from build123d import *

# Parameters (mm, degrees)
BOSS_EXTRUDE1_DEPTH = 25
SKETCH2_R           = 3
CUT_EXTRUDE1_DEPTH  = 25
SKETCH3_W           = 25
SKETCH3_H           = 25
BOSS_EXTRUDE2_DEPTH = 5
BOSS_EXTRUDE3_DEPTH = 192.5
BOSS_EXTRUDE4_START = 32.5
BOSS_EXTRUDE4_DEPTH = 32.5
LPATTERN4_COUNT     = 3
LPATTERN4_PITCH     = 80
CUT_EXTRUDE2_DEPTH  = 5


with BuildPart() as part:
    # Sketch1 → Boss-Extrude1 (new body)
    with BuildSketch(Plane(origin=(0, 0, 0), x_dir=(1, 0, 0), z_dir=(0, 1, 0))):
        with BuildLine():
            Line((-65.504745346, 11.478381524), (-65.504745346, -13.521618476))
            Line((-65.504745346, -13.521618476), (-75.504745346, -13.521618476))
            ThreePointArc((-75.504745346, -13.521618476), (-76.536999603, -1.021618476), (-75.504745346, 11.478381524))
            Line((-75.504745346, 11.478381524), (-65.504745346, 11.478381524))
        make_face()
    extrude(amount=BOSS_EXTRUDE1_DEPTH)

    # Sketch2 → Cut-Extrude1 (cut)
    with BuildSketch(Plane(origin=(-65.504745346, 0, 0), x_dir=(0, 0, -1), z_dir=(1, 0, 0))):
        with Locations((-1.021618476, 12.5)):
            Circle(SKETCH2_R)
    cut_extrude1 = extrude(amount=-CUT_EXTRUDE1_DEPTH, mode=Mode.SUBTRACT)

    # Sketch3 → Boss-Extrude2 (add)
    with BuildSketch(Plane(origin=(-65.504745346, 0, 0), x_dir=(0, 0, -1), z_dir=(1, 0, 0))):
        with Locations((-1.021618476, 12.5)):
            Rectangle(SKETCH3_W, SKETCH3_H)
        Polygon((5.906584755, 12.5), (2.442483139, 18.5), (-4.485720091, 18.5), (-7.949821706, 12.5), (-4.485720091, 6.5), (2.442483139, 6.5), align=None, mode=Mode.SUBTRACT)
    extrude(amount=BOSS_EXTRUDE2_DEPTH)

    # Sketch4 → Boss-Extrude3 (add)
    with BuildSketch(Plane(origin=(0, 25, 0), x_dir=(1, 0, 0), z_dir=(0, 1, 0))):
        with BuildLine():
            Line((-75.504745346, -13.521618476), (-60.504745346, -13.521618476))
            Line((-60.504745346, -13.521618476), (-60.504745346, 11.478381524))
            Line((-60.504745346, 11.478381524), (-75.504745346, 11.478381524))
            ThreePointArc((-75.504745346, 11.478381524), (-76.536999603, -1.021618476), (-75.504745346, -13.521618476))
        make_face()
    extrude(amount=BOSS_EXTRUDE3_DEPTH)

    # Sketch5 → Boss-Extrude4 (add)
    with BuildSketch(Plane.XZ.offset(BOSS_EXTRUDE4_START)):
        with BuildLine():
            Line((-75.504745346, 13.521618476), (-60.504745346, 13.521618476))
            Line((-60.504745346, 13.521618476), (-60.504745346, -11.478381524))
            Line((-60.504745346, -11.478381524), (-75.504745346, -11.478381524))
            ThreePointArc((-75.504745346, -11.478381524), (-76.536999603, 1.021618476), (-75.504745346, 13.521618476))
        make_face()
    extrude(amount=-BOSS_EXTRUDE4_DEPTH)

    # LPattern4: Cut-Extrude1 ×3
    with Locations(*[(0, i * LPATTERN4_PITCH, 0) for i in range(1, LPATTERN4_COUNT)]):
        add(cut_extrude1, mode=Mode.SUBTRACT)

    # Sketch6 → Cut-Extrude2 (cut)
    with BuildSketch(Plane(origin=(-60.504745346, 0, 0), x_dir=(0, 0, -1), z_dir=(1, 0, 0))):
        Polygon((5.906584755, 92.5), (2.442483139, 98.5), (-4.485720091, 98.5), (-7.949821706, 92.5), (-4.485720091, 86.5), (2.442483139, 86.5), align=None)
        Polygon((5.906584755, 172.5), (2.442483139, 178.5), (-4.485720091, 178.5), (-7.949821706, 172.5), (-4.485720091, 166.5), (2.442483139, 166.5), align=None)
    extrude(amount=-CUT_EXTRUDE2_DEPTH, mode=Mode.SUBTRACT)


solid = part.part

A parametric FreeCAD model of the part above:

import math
import FreeCAD as App
import Part
import Sketcher
from FreeCAD import Vector
Q = App.Units.Quantity

doc = App.newDocument("Part")
body = doc.addObject("PartDesign::Body", "Body")

sketch1 = body.newObject("Sketcher::SketchObject", "Sketch")
sketch1.AttachmentSupport = (doc.getObject("XZ_Plane"), [""])
sketch1.MapMode = "FlatFace"
sketch1.addGeometry([
    Part.LineSegment(Vector(-66, 14, 0), Vector(-66, -11, 0)),
    Part.LineSegment(Vector(-66, -11, 0), Vector(-76, -11, 0)),
    Part.ArcOfCircle(Part.Circle(Vector(0, 1, 0), Vector(0, 0, 1), 76), math.radians(170.56), math.radians(189.44)),
    Part.LineSegment(Vector(-76, 14, 0), Vector(-66, 14, 0)),
], False)
sketch1.addConstraint([
    Sketcher.Constraint("Coincident", 0, 2, 1, 1),
    Sketcher.Constraint("Coincident", 1, 2, 2, 2),
    Sketcher.Constraint("Coincident", 2, 1, 3, 1),
    Sketcher.Constraint("Coincident", 3, 2, 0, 1),
    Sketcher.Constraint("Vertical", 0),
    Sketcher.Constraint("Horizontal", 1),
    Sketcher.Constraint("Horizontal", 3),
    Sketcher.Constraint("Vertical", 1, 2, 2, 1),
    Sketcher.Constraint("Radius", 2, Q("76.2 mm")),
    Sketcher.Constraint("DistanceX", 1, 2, 1, 1, Q("10 mm")),
    Sketcher.Constraint("DistanceY", 0, 2, 0, 1, Q("25 mm")),
    Sketcher.Constraint("DistanceX", 2, 3, -1, 1, Q("0.337 mm")),
    Sketcher.Constraint("DistanceY", -1, 1, 2, 3, Q("1.021618 mm")),
])
pad1 = body.newObject("PartDesign::Pad", "Pad")
pad1.Profile = sketch1
pad1.Length = 25
pad1.Reversed = True

sketch2 = body.newObject("Sketcher::SketchObject", "Sketch001")
sketch2.AttachmentSupport = (doc.getObject("YZ_Plane"), [""])
sketch2.MapMode = "FlatFace"
sketch2.AttachmentOffset = App.Placement(Vector(0, 0, -65.504745), App.Rotation())
sketch2.addGeometry(Part.Circle(Vector(12.5, 1, 0), Vector(0, 0, 1), 3), False)
sketch2.addConstraint([
    Sketcher.Constraint("Diameter", 0, Q("6 mm")),
    Sketcher.Constraint("DistanceX", -1, 1, 0, 3, Q("12.5 mm")),
    Sketcher.Constraint("DistanceY", -1, 1, 0, 3, Q("1.021618 mm")),
])
pocket1 = body.newObject("PartDesign::Pocket", "Pocket")
pocket1.Profile = sketch2
pocket1.Length = 25

sketch3 = body.newObject("Sketcher::SketchObject", "Sketch002")
sketch3.AttachmentSupport = (doc.getObject("YZ_Plane"), [""])
sketch3.MapMode = "FlatFace"
sketch3.AttachmentOffset = App.Placement(Vector(0, 0, -65.504745), App.Rotation())
sketch3.addGeometry([
    Part.LineSegment(Vector(25, 14, 0), Vector(0, 14, 0)),
    Part.LineSegment(Vector(0, 14, 0), Vector(0, -11, 0)),
    Part.LineSegment(Vector(0, -11, 0), Vector(25, -11, 0)),
    Part.LineSegment(Vector(25, -11, 0), Vector(25, 14, 0)),
    Part.LineSegment(Vector(18, -2, 0), Vector(12, -6, 0)),
    Part.LineSegment(Vector(12, -6, 0), Vector(6, -2, 0)),
    Part.LineSegment(Vector(6, -2, 0), Vector(6, 4, 0)),
    Part.LineSegment(Vector(6, 4, 0), Vector(12, 8, 0)),
    Part.LineSegment(Vector(12, 8, 0), Vector(18, 4, 0)),
    Part.LineSegment(Vector(18, 4, 0), Vector(18, -2, 0)),
], False)
sketch3.addConstraint([
    Sketcher.Constraint("Coincident", 0, 2, 1, 1),
    Sketcher.Constraint("Coincident", 1, 2, 2, 1),
    Sketcher.Constraint("Coincident", 2, 2, 3, 1),
    Sketcher.Constraint("Coincident", 3, 2, 0, 1),
    Sketcher.Constraint("Coincident", 4, 2, 5, 1),
    Sketcher.Constraint("Coincident", 5, 2, 6, 1),
    Sketcher.Constraint("Coincident", 6, 2, 7, 1),
    Sketcher.Constraint("Coincident", 7, 2, 8, 1),
    Sketcher.Constraint("Coincident", 8, 2, 9, 1),
    Sketcher.Constraint("Coincident", 9, 2, 4, 1),
    Sketcher.Constraint("Horizontal", 0),
    Sketcher.Constraint("Vertical", 1),
    Sketcher.Constraint("Horizontal", 2),
    Sketcher.Constraint("Vertical", 3),
    Sketcher.Constraint("Vertical", 6),
    Sketcher.Constraint("Vertical", 9),
    Sketcher.Constraint("PointOnObject", 0, 2, -2),
    Sketcher.Constraint("Parallel", 4, 7),
    Sketcher.Constraint("Parallel", 5, 8),
    Sketcher.Constraint("Horizontal", 6, 2, 8, 2),
    Sketcher.Constraint("Horizontal", 5, 2, 9, 2),
    Sketcher.Constraint("Vertical", 4, 2, 7, 2),
    Sketcher.Constraint("Equal", 2, 1),
    Sketcher.Constraint("DistanceX", 0, 2, 0, 1, Q("25 mm")),
    Sketcher.Constraint("Angle", 4, Q("-150 deg")),
    Sketcher.Constraint("DistanceX", 5, 2, 4, 2, Q("6 mm")),
    Sketcher.Constraint("DistanceX", -1, 1, 4, 2, Q("12.5 mm")),
    Sketcher.Constraint("DistanceY", 1, 2, 5, 2, Q("9.035898 mm")),
    Sketcher.Constraint("DistanceY", 6, 2, 0, 2, Q("9.035898 mm")),
    Sketcher.Constraint("DistanceY", -1, 1, 0, 2, Q("13.521618 mm")),
])
pad2 = body.newObject("PartDesign::Pad", "Pad001")
pad2.Profile = sketch3
pad2.Length = 5

sketch4 = body.newObject("Sketcher::SketchObject", "Sketch003")
sketch4.AttachmentSupport = (doc.getObject("XZ_Plane"), [""])
sketch4.MapMode = "FlatFace"
sketch4.AttachmentOffset = App.Placement(Vector(0, 0, -25), App.Rotation())
sketch4.addGeometry([
    Part.LineSegment(Vector(-76, 14, 0), Vector(-61, 14, 0)),
    Part.LineSegment(Vector(-61, 14, 0), Vector(-61, -11, 0)),
    Part.LineSegment(Vector(-61, -11, 0), Vector(-76, -11, 0)),
    Part.ArcOfCircle(Part.Circle(Vector(0, 1, 0), Vector(0, 0, 1), 76), math.radians(170.56), math.radians(189.44)),
], False)
sketch4.addConstraint([
    Sketcher.Constraint("Coincident", 0, 2, 1, 1),
    Sketcher.Constraint("Coincident", 1, 2, 2, 1),
    Sketcher.Constraint("Coincident", 2, 2, 3, 2),
    Sketcher.Constraint("Coincident", 3, 1, 0, 1),
    Sketcher.Constraint("Horizontal", 0),
    Sketcher.Constraint("Vertical", 1),
    Sketcher.Constraint("Horizontal", 2),
    Sketcher.Constraint("Vertical", 2, 2, 3, 1),
    Sketcher.Constraint("Radius", 3, Q("76.2 mm")),
    Sketcher.Constraint("DistanceX", 0, 1, 0, 2, Q("15 mm")),
    Sketcher.Constraint("DistanceY", 1, 2, 1, 1, Q("25 mm")),
    Sketcher.Constraint("DistanceX", 3, 3, -1, 1, Q("0.337 mm")),
    Sketcher.Constraint("DistanceY", -1, 1, 3, 3, Q("1.021618 mm")),
])
pad3 = body.newObject("PartDesign::Pad", "Pad002")
pad3.Profile = sketch4
pad3.Length = 192.5
pad3.Reversed = True

sketch5 = body.newObject("Sketcher::SketchObject", "Sketch004")
sketch5.AttachmentSupport = (doc.getObject("XZ_Plane"), [""])
sketch5.MapMode = "FlatFace"
sketch5.AttachmentOffset = App.Placement(Vector(0, 0, 32.5), App.Rotation())
sketch5.addGeometry([
    Part.LineSegment(Vector(-61, 14, 0), Vector(-76, 14, 0)),
    Part.ArcOfCircle(Part.Circle(Vector(0, 1, 0), Vector(0, 0, 1), 76), math.radians(170.56), math.radians(189.44)),
    Part.LineSegment(Vector(-76, -11, 0), Vector(-61, -11, 0)),
    Part.LineSegment(Vector(-61, -11, 0), Vector(-61, 14, 0)),
], False)
sketch5.addConstraint([
    Sketcher.Constraint("Coincident", 0, 2, 1, 1),
    Sketcher.Constraint("Coincident", 1, 2, 2, 1),
    Sketcher.Constraint("Coincident", 2, 2, 3, 1),
    Sketcher.Constraint("Coincident", 3, 2, 0, 1),
    Sketcher.Constraint("Horizontal", 0),
    Sketcher.Constraint("Horizontal", 2),
    Sketcher.Constraint("Vertical", 3),
    Sketcher.Constraint("Vertical", 0, 2, 1, 2),
    Sketcher.Constraint("Radius", 1, Q("76.2 mm")),
    Sketcher.Constraint("DistanceX", 0, 2, 0, 1, Q("15 mm")),
    Sketcher.Constraint("DistanceY", 3, 1, 3, 2, Q("25 mm")),
    Sketcher.Constraint("DistanceX", 1, 3, -1, 1, Q("0.337 mm")),
    Sketcher.Constraint("DistanceY", -1, 1, 1, 3, Q("1.021618 mm")),
])
pad4 = body.newObject("PartDesign::Pad", "Pad003")
pad4.Profile = sketch5
pad4.Length = 32.5
pad4.Reversed = True
doc.recompute()

linearpattern = body.newObject("PartDesign::LinearPattern", "LinearPattern")
linearpattern.Originals = [pocket1]
linearpattern.Direction = (doc.getObject("Y_Axis"), [""])
linearpattern.Mode = "offset"
linearpattern.Offset = 80
linearpattern.Occurrences = 3
body.Tip = linearpattern

sketch6 = body.newObject("Sketcher::SketchObject", "Sketch005")
sketch6.AttachmentSupport = (doc.getObject("YZ_Plane"), [""])
sketch6.MapMode = "FlatFace"
sketch6.AttachmentOffset = App.Placement(Vector(0, 0, -60.504745), App.Rotation())
sketch6.addGeometry([
    Part.LineSegment(Vector(92, -6, 0), Vector(98, -2, 0)),
    Part.LineSegment(Vector(98, -2, 0), Vector(98, 4, 0)),
    Part.LineSegment(Vector(98, 4, 0), Vector(92, 8, 0)),
    Part.LineSegment(Vector(92, 8, 0), Vector(86, 4, 0)),
    Part.LineSegment(Vector(86, 4, 0), Vector(86, -2, 0)),
    Part.LineSegment(Vector(86, -2, 0), Vector(92, -6, 0)),
    Part.LineSegment(Vector(172, -6, 0), Vector(178, -2, 0)),
    Part.LineSegment(Vector(178, -2, 0), Vector(178, 4, 0)),
    Part.LineSegment(Vector(178, 4, 0), Vector(172, 8, 0)),
    Part.LineSegment(Vector(172, 8, 0), Vector(166, 4, 0)),
    Part.LineSegment(Vector(166, 4, 0), Vector(166, -2, 0)),
    Part.LineSegment(Vector(166, -2, 0), Vector(172, -6, 0)),
], False)
sketch6.addConstraint([
    Sketcher.Constraint("Coincident", 0, 2, 1, 1),
    Sketcher.Constraint("Coincident", 1, 2, 2, 1),
    Sketcher.Constraint("Coincident", 2, 2, 3, 1),
    Sketcher.Constraint("Coincident", 3, 2, 4, 1),
    Sketcher.Constraint("Coincident", 4, 2, 5, 1),
    Sketcher.Constraint("Coincident", 5, 2, 0, 1),
    Sketcher.Constraint("Coincident", 6, 2, 7, 1),
    Sketcher.Constraint("Coincident", 7, 2, 8, 1),
    Sketcher.Constraint("Coincident", 8, 2, 9, 1),
    Sketcher.Constraint("Coincident", 9, 2, 10, 1),
    Sketcher.Constraint("Coincident", 10, 2, 11, 1),
    Sketcher.Constraint("Coincident", 11, 2, 6, 1),
    Sketcher.Constraint("Vertical", 1),
    Sketcher.Constraint("Vertical", 4),
    Sketcher.Constraint("Vertical", 7),
    Sketcher.Constraint("Vertical", 10),
    Sketcher.Constraint("Parallel", 0, 3),
    Sketcher.Constraint("Parallel", 2, 5),
    Sketcher.Constraint("Parallel", 3, 6),
    Sketcher.Constraint("Parallel", 5, 8),
    Sketcher.Constraint("Parallel", 6, 9),
    Sketcher.Constraint("Parallel", 8, 11),
    Sketcher.Constraint("Horizontal", 1, 2, 3, 2),
    Sketcher.Constraint("Horizontal", 0, 2, 4, 2),
    Sketcher.Constraint("Horizontal", 4, 2, 6, 2),
    Sketcher.Constraint("Horizontal", 3, 2, 7, 2),
    Sketcher.Constraint("Horizontal", 2, 2, 8, 2),
    Sketcher.Constraint("Horizontal", 7, 2, 9, 2),
    Sketcher.Constraint("Horizontal", 6, 2, 10, 2),
    Sketcher.Constraint("Vertical", 2, 2, 5, 2),
    Sketcher.Constraint("Angle", 0, Q("30 deg")),
    Sketcher.Constraint("DistanceX", 2, 2, 1, 2, Q("6 mm")),
    Sketcher.Constraint("DistanceX", 0, 2, 6, 2, Q("80 mm")),
    Sketcher.Constraint("DistanceX", -1, 1, 0, 2, Q("98.5 mm")),
    Sketcher.Constraint("DistanceY", 1, 1, 1, 2, Q("6.928203 mm")),
    Sketcher.Constraint("DistanceY", -1, 1, 1, 2, Q("4.48572 mm")),
])
pocket2 = body.newObject("PartDesign::Pocket", "Pocket001")
pocket2.Profile = sketch6
pocket2.Length = 5

doc.recompute()
